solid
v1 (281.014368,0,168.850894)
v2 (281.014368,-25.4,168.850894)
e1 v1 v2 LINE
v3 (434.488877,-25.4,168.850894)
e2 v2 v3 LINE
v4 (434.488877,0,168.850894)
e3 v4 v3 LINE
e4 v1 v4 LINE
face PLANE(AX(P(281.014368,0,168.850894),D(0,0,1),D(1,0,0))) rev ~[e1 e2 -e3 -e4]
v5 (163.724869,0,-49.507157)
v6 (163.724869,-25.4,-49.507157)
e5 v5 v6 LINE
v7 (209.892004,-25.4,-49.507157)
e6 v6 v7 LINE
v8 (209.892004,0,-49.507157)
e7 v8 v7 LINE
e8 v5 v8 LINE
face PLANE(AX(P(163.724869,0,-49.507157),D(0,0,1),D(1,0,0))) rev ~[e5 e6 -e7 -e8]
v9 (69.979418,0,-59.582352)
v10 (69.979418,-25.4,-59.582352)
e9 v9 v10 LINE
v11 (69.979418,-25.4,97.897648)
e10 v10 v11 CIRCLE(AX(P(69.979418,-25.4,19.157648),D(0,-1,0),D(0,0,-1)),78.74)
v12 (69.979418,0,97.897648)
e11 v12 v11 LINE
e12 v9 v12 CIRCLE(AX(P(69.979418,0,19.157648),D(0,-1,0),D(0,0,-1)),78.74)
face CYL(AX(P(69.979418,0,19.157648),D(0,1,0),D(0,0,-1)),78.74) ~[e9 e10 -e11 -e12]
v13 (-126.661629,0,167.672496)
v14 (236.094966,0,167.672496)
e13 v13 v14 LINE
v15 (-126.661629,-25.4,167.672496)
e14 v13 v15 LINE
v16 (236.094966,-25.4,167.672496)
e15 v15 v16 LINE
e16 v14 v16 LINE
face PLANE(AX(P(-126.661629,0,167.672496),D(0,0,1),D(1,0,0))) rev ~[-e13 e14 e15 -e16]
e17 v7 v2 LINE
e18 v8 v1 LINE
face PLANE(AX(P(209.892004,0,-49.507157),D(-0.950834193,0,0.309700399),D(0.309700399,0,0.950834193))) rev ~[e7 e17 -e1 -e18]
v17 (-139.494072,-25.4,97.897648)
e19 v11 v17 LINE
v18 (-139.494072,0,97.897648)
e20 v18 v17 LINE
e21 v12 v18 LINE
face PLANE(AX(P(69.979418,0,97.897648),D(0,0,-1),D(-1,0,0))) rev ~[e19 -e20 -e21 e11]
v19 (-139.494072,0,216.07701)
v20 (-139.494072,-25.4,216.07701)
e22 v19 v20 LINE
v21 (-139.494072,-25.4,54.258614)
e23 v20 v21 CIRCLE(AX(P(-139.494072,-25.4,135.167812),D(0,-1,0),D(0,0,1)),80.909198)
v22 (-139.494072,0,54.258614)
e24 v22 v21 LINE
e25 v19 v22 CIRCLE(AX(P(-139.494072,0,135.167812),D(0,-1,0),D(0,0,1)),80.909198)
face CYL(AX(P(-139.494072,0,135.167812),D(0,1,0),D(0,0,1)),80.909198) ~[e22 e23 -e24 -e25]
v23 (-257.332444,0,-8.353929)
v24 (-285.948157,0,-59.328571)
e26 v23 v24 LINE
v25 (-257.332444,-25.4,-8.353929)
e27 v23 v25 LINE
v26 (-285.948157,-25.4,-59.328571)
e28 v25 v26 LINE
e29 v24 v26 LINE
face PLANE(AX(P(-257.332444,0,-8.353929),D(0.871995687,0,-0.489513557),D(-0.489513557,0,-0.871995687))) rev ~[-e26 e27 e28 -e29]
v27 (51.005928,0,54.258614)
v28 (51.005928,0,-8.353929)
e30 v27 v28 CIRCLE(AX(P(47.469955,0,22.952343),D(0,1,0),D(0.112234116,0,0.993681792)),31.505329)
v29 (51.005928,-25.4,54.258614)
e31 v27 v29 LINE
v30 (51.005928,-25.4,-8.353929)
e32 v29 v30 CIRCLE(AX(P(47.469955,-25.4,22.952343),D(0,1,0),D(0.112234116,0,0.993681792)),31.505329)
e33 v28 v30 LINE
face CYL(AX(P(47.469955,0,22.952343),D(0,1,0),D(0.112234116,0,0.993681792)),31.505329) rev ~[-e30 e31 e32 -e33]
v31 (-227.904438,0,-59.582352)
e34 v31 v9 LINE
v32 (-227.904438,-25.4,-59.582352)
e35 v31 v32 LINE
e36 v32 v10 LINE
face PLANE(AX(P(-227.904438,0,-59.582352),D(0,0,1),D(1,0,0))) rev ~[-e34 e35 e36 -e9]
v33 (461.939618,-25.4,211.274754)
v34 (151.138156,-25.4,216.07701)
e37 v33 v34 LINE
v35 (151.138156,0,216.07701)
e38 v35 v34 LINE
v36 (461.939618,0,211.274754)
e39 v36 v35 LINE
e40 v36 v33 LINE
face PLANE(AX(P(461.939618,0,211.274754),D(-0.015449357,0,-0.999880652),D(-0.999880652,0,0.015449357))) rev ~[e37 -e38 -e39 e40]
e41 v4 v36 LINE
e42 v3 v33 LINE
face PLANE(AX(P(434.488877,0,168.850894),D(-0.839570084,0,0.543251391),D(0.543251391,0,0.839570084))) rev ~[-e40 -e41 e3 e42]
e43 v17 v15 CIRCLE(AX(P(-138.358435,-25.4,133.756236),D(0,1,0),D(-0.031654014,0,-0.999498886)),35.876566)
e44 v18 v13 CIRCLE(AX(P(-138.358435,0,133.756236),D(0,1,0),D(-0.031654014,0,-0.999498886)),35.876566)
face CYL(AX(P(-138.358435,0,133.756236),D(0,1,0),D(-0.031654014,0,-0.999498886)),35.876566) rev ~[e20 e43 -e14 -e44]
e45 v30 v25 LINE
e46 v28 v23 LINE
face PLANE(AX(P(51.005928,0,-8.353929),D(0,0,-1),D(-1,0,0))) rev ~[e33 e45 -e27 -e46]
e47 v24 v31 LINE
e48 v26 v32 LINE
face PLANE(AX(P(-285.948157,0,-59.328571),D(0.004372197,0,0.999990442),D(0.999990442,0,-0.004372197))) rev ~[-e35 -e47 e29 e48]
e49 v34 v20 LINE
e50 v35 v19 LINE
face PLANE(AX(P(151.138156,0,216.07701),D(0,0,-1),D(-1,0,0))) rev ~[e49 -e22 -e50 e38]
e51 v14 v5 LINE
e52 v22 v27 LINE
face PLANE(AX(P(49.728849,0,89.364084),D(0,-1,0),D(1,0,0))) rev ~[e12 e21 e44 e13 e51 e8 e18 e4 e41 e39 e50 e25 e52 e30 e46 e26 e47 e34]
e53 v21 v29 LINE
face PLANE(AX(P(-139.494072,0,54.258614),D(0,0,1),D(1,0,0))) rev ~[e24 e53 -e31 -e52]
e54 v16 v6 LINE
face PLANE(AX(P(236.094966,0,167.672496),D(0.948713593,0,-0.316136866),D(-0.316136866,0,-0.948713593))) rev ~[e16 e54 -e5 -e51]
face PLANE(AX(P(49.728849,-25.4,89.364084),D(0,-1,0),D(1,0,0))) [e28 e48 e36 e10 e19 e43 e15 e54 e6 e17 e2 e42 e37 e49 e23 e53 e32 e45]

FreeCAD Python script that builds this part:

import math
import FreeCAD as App
import Part
import Sketcher

V = App.Vector
Q = App.Units.Quantity

doc = App.newDocument("Part")
body = doc.addObject("PartDesign::Body", "Body")

# Sketch on XZ plane
sketch1 = doc.addObject("Sketcher::SketchObject", "Sketch")
body.addObject(sketch1)
sketch1.AttachmentSupport = (doc.XZ_Plane, [""])
sketch1.MapMode = "FlatFace"
sketch1.addGeometry([
    Part.LineSegment(V(-286, -59, 0), V(-228, -60, 0)),  # 0
    Part.LineSegment(V(-228, -60, 0), V(70, -60, 0)),  # 1
    Part.ArcOfCircle(Part.Circle(V(70, 19, 0), V(0, 0, 1), 79), math.radians(-90), math.radians(90)),  # 2
    Part.LineSegment(V(70, 98, 0), V(-139, 98, 0)),  # 3
    Part.ArcOfCircle(Part.Circle(V(-138, 134, 0), V(0, 0, 1), 36), math.radians(71), math.radians(268)),  # 4
    Part.LineSegment(V(-127, 168, 0), V(236, 168, 0)),  # 5
    Part.LineSegment(V(236, 168, 0), V(164, -50, 0)),  # 6
    Part.LineSegment(V(164, -50, 0), V(210, -50, 0)),  # 7
    Part.LineSegment(V(210, -50, 0), V(281, 169, 0)),  # 8
    Part.LineSegment(V(281, 169, 0), V(434, 169, 0)),  # 9
    Part.LineSegment(V(434, 169, 0), V(462, 211, 0)),  # 10
    Part.LineSegment(V(462, 211, 0), V(151, 216, 0)),  # 11
    Part.LineSegment(V(151, 216, 0), V(-139, 216, 0)),  # 12
    Part.ArcOfCircle(Part.Circle(V(-139, 135, 0), V(0, 0, 1), 81), math.radians(90), math.radians(270)),  # 13
    Part.LineSegment(V(-139, 54, 0), V(51, 54, 0)),  # 14
    Part.ArcOfCircle(Part.Circle(V(47, 23, 0), V(0, 0, 1), 32), math.radians(-84), math.radians(84)),  # 15
    Part.LineSegment(V(51, -8, 0), V(-257, -8, 0)),  # 16
    Part.LineSegment(V(-257, -8, 0), V(-286, -59, 0)),  # 17
], False)
sketch1.addConstraint([
    Sketcher.Constraint("Coincident", 0, 2, 1, 1),
    Sketcher.Constraint("Tangent", 1, 2, 2, 1),
    Sketcher.Constraint("Tangent", 2, 2, 3, 1),
    Sketcher.Constraint("Coincident", 3, 2, 4, 2),
    Sketcher.Constraint("Coincident", 4, 1, 5, 1),
    Sketcher.Constraint("Coincident", 5, 2, 6, 1),
    Sketcher.Constraint("Coincident", 6, 2, 7, 1),
    Sketcher.Constraint("Coincident", 7, 2, 8, 1),
    Sketcher.Constraint("Coincident", 8, 2, 9, 1),
    Sketcher.Constraint("Coincident", 9, 2, 10, 1),
    Sketcher.Constraint("Coincident", 10, 2, 11, 1),
    Sketcher.Constraint("Coincident", 11, 2, 12, 1),
    Sketcher.Constraint("Tangent", 12, 2, 13, 1),
    Sketcher.Constraint("Tangent", 13, 2, 14, 1),
    Sketcher.Constraint("Coincident", 14, 2, 15, 2),
    Sketcher.Constraint("Coincident", 15, 1, 16, 1),
    Sketcher.Constraint("Coincident", 16, 2, 17, 1),
    Sketcher.Constraint("Coincident", 17, 2, 0, 1),
    Sketcher.Constraint("Horizontal", 1),
    Sketcher.Constraint("Horizontal", 3),
    Sketcher.Constraint("Horizontal", 5),
    Sketcher.Constraint("Horizontal", 7),
    Sketcher.Constraint("Horizontal", 9),
    Sketcher.Constraint("Horizontal", 12),
    Sketcher.Constraint("Horizontal", 14),
    Sketcher.Constraint("Horizontal", 16),
    Sketcher.Constraint("Vertical", 13, 3, 3, 2),
    Sketcher.Constraint("Vertical", 14, 2, 15, 1),
    Sketcher.Constraint("Radius", 2, Q("3.1 in")),
    Sketcher.Constraint("DistanceX", 14, 1, 14, 2, Q("7.5 in")),
    Sketcher.Constraint("Radius", 13, 80.909198),
    Sketcher.Constraint("Radius", 15, 31.505329),
    Sketcher.Constraint("Radius", 4, 35.876566),
    Sketcher.Constraint("DistanceX", 3, 2, 3, 1, 209.47349),
    Sketcher.Constraint("DistanceX", 9, 1, 9, 2, 153.474509),
    Sketcher.Constraint("DistanceX", 12, 2, 12, 1, 290.632228),
    Sketcher.Constraint("DistanceX", 16, 2, 16, 1, 308.338372),
    Sketcher.Constraint("DistanceY", 6, 2, 15, 3, 72.459499),
    Sketcher.Constraint("DistanceX", 5, 2, 8, 2, 44.919402),
    Sketcher.Constraint("DistanceY", 5, 2, 8, 2, 1.178398),
    Sketcher.Constraint("DistanceX", 6, 2, 8, 2, 117.289499),
    Sketcher.Constraint("DistanceX", 15, 3, 11, 2, 103.668201),
    Sketcher.Constraint("Distance", 11, 310.83856),
    Sketcher.Constraint("DistanceX", 1, 1, 1, 2, 297.883856),
    Sketcher.Constraint("DistanceX", 5, 1, 5, 2, 362.756595),
    Sketcher.Constraint("DistanceX", 7, 1, 7, 2, 46.167135),
    Sketcher.Constraint("DistanceX", 13, 3, -1, 1, 139.494072),
    Sketcher.Constraint("DistanceY", -1, 1, 13, 3, 135.167812),
    Sketcher.Constraint("DistanceY", -1, 1, 3, 2, 97.897648),
    Sketcher.Constraint("DistanceX", 4, 1, -1, 1, 126.661629),
    Sketcher.Constraint("DistanceX", -1, 1, 10, 2, 461.939618),
    Sketcher.Constraint("DistanceY", 17, 2, -1, 1, 59.328571),
    Sketcher.Constraint("DistanceX", 4, 3, 15, 3, 185.82839),
    Sketcher.Constraint("DistanceX", 17, 2, 0, 2, 58.043719),
])
pad1 = doc.addObject("PartDesign::Pad", "Pad")
body.addObject(pad1)
pad1.Profile = sketch1
pad1.Length = Q("1 in")

doc.recompute()
